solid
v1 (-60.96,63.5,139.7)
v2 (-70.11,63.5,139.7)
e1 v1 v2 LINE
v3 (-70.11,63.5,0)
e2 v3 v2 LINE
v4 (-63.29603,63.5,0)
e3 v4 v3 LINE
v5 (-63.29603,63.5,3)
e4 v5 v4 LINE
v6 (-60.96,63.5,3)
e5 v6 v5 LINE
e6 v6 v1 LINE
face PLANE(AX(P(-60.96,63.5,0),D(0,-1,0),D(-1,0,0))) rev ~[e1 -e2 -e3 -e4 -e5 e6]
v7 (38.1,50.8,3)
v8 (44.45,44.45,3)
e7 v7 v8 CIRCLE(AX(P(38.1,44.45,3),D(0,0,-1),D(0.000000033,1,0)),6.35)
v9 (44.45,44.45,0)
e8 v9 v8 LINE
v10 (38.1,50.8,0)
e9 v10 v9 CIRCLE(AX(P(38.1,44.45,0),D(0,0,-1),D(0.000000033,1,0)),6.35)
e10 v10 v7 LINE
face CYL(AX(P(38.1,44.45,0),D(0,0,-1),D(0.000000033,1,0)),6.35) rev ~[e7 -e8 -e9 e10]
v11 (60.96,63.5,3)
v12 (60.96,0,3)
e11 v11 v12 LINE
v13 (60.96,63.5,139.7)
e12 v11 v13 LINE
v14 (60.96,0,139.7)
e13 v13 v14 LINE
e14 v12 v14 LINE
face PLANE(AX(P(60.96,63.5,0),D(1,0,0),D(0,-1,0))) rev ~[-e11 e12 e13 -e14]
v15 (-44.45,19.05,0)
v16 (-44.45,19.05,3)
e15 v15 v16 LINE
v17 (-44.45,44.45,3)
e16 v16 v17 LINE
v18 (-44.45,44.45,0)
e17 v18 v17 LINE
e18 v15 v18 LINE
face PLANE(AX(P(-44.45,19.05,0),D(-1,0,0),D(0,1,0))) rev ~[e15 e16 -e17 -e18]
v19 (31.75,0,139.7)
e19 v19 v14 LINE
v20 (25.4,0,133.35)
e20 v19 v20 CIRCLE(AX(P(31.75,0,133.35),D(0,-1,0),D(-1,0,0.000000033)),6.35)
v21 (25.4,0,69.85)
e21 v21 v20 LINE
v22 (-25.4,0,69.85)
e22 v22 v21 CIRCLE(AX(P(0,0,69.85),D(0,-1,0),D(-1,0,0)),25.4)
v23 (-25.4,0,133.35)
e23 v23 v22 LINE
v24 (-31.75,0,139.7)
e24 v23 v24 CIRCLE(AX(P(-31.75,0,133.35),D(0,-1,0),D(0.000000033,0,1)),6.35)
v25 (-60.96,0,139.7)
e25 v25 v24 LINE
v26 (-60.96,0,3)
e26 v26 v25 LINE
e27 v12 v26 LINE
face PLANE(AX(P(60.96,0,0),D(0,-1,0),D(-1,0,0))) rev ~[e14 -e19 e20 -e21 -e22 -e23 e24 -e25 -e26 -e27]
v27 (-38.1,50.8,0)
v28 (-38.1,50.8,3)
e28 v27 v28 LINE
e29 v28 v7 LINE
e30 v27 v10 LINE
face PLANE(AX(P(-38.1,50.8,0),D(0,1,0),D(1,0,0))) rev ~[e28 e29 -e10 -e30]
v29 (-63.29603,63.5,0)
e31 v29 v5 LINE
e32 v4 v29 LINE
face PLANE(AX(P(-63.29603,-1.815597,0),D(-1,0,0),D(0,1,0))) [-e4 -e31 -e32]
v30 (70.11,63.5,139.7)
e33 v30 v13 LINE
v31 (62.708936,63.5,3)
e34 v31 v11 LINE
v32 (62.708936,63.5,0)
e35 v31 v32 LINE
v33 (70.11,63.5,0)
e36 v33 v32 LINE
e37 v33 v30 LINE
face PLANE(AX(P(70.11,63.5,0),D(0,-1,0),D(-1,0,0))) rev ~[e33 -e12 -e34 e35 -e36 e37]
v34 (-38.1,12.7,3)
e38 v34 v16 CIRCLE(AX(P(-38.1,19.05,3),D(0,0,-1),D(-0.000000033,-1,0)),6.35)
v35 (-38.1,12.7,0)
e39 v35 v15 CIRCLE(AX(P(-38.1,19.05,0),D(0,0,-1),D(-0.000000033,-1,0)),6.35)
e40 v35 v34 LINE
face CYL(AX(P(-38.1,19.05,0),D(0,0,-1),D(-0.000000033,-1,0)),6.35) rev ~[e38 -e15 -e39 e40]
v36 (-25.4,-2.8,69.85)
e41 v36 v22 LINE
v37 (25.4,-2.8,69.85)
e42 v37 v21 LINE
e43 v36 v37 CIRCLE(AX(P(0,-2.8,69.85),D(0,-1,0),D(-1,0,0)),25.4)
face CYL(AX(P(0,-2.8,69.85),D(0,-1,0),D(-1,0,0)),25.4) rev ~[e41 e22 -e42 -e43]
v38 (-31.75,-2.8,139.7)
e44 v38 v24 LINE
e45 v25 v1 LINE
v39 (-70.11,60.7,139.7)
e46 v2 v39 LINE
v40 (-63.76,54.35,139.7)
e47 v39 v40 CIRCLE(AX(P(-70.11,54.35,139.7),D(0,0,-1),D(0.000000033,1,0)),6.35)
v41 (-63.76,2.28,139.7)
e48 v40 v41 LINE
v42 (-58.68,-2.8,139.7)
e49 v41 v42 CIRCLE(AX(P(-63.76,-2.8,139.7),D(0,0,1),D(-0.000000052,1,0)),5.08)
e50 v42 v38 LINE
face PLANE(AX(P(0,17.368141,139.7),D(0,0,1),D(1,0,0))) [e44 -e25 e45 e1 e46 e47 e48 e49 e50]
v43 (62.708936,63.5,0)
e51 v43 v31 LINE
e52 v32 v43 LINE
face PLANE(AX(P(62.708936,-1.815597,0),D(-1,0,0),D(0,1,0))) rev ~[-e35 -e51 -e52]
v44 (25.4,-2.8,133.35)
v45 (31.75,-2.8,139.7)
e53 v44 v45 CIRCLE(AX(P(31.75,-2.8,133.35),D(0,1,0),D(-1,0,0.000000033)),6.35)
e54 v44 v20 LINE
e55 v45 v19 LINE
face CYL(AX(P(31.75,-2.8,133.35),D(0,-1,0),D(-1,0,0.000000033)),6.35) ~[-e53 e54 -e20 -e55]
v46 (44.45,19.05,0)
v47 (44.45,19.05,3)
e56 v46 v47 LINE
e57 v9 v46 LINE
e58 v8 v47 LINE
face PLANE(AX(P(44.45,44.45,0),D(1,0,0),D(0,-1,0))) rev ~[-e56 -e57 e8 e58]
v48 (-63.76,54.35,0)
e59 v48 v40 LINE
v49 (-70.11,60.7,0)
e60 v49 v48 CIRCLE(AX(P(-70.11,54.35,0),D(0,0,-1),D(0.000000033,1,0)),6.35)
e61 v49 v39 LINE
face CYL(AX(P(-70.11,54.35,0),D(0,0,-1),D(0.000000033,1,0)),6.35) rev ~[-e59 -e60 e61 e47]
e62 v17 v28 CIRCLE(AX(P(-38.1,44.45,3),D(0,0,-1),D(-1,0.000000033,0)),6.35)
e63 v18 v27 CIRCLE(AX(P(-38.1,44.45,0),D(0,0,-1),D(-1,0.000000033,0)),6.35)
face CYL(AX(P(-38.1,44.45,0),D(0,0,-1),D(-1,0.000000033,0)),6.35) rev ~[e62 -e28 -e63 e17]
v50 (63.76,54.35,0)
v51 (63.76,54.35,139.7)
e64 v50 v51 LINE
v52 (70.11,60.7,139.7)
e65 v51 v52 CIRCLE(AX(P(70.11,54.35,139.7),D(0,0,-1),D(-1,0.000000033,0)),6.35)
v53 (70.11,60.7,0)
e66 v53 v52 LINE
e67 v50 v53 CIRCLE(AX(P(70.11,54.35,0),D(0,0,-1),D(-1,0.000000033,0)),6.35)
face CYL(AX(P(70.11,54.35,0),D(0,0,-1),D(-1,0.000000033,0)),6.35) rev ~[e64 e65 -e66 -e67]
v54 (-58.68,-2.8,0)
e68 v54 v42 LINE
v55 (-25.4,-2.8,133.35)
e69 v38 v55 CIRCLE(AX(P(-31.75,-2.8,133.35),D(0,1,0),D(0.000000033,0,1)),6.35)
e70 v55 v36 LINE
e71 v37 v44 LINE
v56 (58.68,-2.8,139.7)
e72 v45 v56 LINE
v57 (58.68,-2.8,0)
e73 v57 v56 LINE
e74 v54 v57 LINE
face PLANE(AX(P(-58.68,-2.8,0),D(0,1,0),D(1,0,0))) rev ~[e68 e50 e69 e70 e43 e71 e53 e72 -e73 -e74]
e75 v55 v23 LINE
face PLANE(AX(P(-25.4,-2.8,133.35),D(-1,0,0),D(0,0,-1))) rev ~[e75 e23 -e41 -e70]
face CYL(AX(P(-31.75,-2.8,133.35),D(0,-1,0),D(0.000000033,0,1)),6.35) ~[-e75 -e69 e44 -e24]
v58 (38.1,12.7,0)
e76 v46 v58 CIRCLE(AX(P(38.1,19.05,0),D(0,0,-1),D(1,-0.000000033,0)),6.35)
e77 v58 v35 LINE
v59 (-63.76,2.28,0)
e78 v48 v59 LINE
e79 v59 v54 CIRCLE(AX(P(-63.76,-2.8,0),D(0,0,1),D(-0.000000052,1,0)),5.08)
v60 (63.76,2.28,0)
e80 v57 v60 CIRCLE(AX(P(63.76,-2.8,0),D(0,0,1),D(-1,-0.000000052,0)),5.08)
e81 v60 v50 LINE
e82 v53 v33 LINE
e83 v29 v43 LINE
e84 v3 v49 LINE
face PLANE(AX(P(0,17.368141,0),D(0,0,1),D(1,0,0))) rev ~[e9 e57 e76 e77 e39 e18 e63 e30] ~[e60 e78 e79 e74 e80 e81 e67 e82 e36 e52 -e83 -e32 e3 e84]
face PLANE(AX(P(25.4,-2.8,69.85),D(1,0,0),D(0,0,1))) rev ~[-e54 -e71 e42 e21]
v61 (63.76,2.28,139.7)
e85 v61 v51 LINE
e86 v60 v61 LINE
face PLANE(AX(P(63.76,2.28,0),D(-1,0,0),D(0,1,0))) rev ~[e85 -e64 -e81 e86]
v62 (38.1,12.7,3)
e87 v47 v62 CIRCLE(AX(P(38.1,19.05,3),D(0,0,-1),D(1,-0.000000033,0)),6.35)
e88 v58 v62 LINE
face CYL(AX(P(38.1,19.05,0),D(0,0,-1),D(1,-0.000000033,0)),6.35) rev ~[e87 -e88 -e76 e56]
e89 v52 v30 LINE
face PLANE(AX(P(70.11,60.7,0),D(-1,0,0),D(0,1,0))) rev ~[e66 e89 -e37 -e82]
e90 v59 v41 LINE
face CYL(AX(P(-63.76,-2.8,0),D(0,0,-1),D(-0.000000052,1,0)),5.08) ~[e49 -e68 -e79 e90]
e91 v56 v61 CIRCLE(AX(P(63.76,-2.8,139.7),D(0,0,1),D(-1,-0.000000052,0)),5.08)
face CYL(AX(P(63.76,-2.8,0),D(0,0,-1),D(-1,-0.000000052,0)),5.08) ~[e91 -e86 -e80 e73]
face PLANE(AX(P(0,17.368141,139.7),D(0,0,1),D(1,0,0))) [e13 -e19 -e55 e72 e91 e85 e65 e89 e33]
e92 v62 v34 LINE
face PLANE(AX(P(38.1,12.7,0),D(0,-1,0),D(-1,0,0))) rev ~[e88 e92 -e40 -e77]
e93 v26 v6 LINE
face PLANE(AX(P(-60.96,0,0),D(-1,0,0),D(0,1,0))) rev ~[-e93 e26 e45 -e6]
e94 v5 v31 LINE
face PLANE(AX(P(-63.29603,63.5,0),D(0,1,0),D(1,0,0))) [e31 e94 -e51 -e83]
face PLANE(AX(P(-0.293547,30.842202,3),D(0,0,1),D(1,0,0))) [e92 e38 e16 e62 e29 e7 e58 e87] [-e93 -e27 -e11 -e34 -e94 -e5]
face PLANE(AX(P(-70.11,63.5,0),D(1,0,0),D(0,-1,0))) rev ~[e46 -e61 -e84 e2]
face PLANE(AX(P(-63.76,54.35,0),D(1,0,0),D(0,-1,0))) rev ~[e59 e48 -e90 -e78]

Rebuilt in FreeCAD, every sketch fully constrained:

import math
import FreeCAD as App
import Part
import Sketcher
Q = App.Units.Quantity


def add_polygon(sketch, points):
    """Adds a closed chain of lines whose ends are joined by coincident constraints."""
    first, n = sketch.GeometryCount, len(points)
    for a, b in zip(points, points[1:] + points[:1]):
        sketch.addGeometry(Part.LineSegment(App.Vector(*a, 0), App.Vector(*b, 0)), False)
    for i in range(n):
        sketch.addConstraint(Sketcher.Constraint("Coincident", first + i, 2, first + (i + 1) % n, 1))

doc = App.newDocument("Part")
body = doc.addObject("PartDesign::Body", "Body")

# Sketch on XY plane
sketch1 = body.newObject("Sketcher::SketchObject", "Sketch")
sketch1.AttachmentSupport = (doc.getObject("XY_Plane"), [""])
sketch1.MapMode = "FlatFace"
sketch1.addGeometry([
    Part.LineSegment(App.Vector(61, 0, 0), App.Vector(-61, 0, 0)),  # 0
    Part.LineSegment(App.Vector(-61, 0, 0), App.Vector(-61, 63.5, 0)),  # 1
    Part.LineSegment(App.Vector(-61, 63.5, 0), App.Vector(-70.1, 63.5, 0)),  # 2
    Part.LineSegment(App.Vector(-70.1, 63.5, 0), App.Vector(-70.1, 60.7, 0)),  # 3
    Part.ArcOfCircle(Part.Circle(App.Vector(-70.1, 54.3, 0), App.Vector(0, 0, 1), 6.4), math.radians(0), math.radians(90)),  # 4
    Part.LineSegment(App.Vector(-63.8, 54.4, 0), App.Vector(-63.8, 2.3, 0)),  # 5
    Part.ArcOfCircle(Part.Circle(App.Vector(-63.8, -2.8, 0), App.Vector(0, 0, 1), 5.1), math.radians(90), math.radians(360)),  # 6
    Part.LineSegment(App.Vector(-58.7, -2.8, 0), App.Vector(58.7, -2.8, 0)),  # 7
    Part.ArcOfCircle(Part.Circle(App.Vector(63.8, -2.8, 0), App.Vector(0, 0, 1), 5.1), math.radians(-180), math.radians(90)),  # 8
    Part.LineSegment(App.Vector(63.8, 2.3, 0), App.Vector(63.8, 54.4, 0)),  # 9
    Part.ArcOfCircle(Part.Circle(App.Vector(70.1, 54.3, 0), App.Vector(0, 0, 1), 6.4), math.radians(90), math.radians(180)),  # 10
    Part.LineSegment(App.Vector(70.1, 60.7, 0), App.Vector(70.1, 63.5, 0)),  # 11
    Part.LineSegment(App.Vector(70.1, 63.5, 0), App.Vector(61, 63.5, 0)),  # 12
    Part.LineSegment(App.Vector(61, 63.5, 0), App.Vector(61, 0, 0)),  # 13
], False)
sketch1.addConstraint([
    Sketcher.Constraint("Coincident", 0, 2, 1, 1),
    Sketcher.Constraint("Coincident", 1, 2, 2, 1),
    Sketcher.Constraint("Coincident", 2, 2, 3, 1),
    Sketcher.Constraint("Coincident", 3, 2, 4, 2),
    Sketcher.Constraint("Tangent", 4, 1, 5, 1),
    Sketcher.Constraint("Coincident", 5, 2, 6, 1),
    Sketcher.Constraint("Coincident", 6, 2, 7, 1),
    Sketcher.Constraint("Coincident", 7, 2, 8, 1),
    Sketcher.Constraint("Coincident", 8, 2, 9, 1),
    Sketcher.Constraint("Tangent", 9, 2, 10, 2),
    Sketcher.Constraint("Coincident", 10, 1, 11, 1),
    Sketcher.Constraint("Coincident", 11, 2, 12, 1),
    Sketcher.Constraint("Coincident", 12, 2, 13, 1),
    Sketcher.Constraint("Coincident", 13, 2, 0, 1),
    Sketcher.Constraint("Horizontal", 0),
    Sketcher.Constraint("Vertical", 1),
    Sketcher.Constraint("Horizontal", 2),
    Sketcher.Constraint("Vertical", 3),
    Sketcher.Constraint("Vertical", 5),
    Sketcher.Constraint("Horizontal", 7),
    Sketcher.Constraint("Vertical", 9),
    Sketcher.Constraint("Vertical", 11),
    Sketcher.Constraint("Horizontal", 12),
    Sketcher.Constraint("Vertical", 13),
    Sketcher.Constraint("Equal", 6, 8),
    Sketcher.Constraint("Equal", 4, 10),
    Sketcher.Constraint("Symmetric", 0, 2, 13, 2, -1, 1),
    Sketcher.Constraint("Symmetric", 6, 3, 8, 3, -2),
    Sketcher.Constraint("Symmetric", 4, 3, 10, 3, -2),
    Sketcher.Constraint("Symmetric", 2, 2, 11, 2, -2),
    Sketcher.Constraint("Horizontal", 8, 3, 6, 2),
    Sketcher.Constraint("Vertical", 4, 3, 2, 2),
    Sketcher.Constraint("Vertical", 6, 3, 4, 1),
    Sketcher.Constraint("Radius", 6, Q("0.2 in")),
    Sketcher.Constraint("Radius", 4, Q("0.25 in")),
    Sketcher.Constraint("DistanceX", 0, 2, 0, 1, Q("4.8 in")),
    Sketcher.Constraint("DistanceY", 1, 1, 1, 2, Q("2.5 in")),
    Sketcher.Constraint("DistanceY", 5, 2, 5, 1, Q("2.05 in")),
    Sketcher.Constraint("DistanceX", 2, 2, 2, 1, 9.15),
    Sketcher.Constraint("DistanceY", 3, 2, 3, 1, 2.8),
])
pad1 = body.newObject("PartDesign::Pad", "Pad")
pad1.Profile = sketch1
pad1.Length = Q("5.5 in")

# Sketch on XZ plane
sketch2 = body.newObject("Sketcher::SketchObject", "Sketch001")
sketch2.AttachmentSupport = (doc.getObject("XZ_Plane"), [""])
sketch2.MapMode = "FlatFace"
sketch2.AttachmentOffset = App.Placement(App.Vector(0, 0, 2.8), App.Rotation())
sketch2.addGeometry([
    Part.LineSegment(App.Vector(-25, 133, 0), App.Vector(-25, 70, 0)),  # 0
    Part.ArcOfCircle(Part.Circle(App.Vector(0, 70, 0), App.Vector(0, 0, 1), 25), math.radians(180), math.radians(360)),  # 1
    Part.LineSegment(App.Vector(25, 70, 0), App.Vector(25, 133, 0)),  # 2
    Part.ArcOfCircle(Part.Circle(App.Vector(32, 133, 0), App.Vector(0, 0, 1), 6), math.radians(90), math.radians(180)),  # 3
    Part.LineSegment(App.Vector(32, 140, 0), App.Vector(42, 140, 0)),  # 4
    Part.LineSegment(App.Vector(42, 140, 0), App.Vector(42, 151, 0)),  # 5
    Part.LineSegment(App.Vector(42, 151, 0), App.Vector(-39, 151, 0)),  # 6
    Part.LineSegment(App.Vector(-39, 151, 0), App.Vector(-39, 140, 0)),  # 7
    Part.LineSegment(App.Vector(-39, 140, 0), App.Vector(-32, 140, 0)),  # 8
    Part.ArcOfCircle(Part.Circle(App.Vector(-32, 133, 0), App.Vector(0, 0, 1), 6), math.radians(0), math.radians(90)),  # 9
], False)
sketch2.addConstraint([
    Sketcher.Constraint("Tangent", 0, 2, 1, 1),
    Sketcher.Constraint("Tangent", 1, 2, 2, 1),
    Sketcher.Constraint("Tangent", 2, 2, 3, 2),
    Sketcher.Constraint("Tangent", 3, 1, 4, 1),
    Sketcher.Constraint("Coincident", 4, 2, 5, 1),
    Sketcher.Constraint("Coincident", 5, 2, 6, 1),
    Sketcher.Constraint("Coincident", 6, 2, 7, 1),
    Sketcher.Constraint("Coincident", 7, 2, 8, 1),
    Sketcher.Constraint("Tangent", 8, 2, 9, 2),
    Sketcher.Constraint("Tangent", 9, 1, 0, 1),
    Sketcher.Constraint("Vertical", 0),
    Sketcher.Constraint("Vertical", 2),
    Sketcher.Constraint("Horizontal", 4),
    Sketcher.Constraint("Vertical", 5),
    Sketcher.Constraint("Horizontal", 6),
    Sketcher.Constraint("Vertical", 7),
    Sketcher.Constraint("Horizontal", 8),
    Sketcher.Constraint("Equal", 3, 9),
    Sketcher.Constraint("Symmetric", 3, 3, 9, 3, -2),
    Sketcher.Constraint("Radius", 1, Q("1 in")),
    Sketcher.Constraint("Radius", 3, Q("0.25 in")),
    Sketcher.Constraint("DistanceY", 0, 2, 0, 1, Q("2.5 in")),
    Sketcher.Constraint("DistanceY", -1, 1, 3, 1, Q("5.5 in")),
    Sketcher.Constraint("DistanceX", 4, 1, 4, 2, 10.155578),
    Sketcher.Constraint("DistanceX", 6, 2, 6, 1, 80.689244),
    Sketcher.Constraint("DistanceY", 5, 1, 5, 2, 11.321525),
])
pocket1 = body.newObject("PartDesign::Pocket", "Pocket")
pocket1.Profile = sketch2
pocket1.Type = "ThroughAll"

# Sketch on XY plane
sketch3 = body.newObject("Sketcher::SketchObject", "Sketch002")
sketch3.AttachmentSupport = (doc.getObject("XY_Plane"), [""])
sketch3.MapMode = "FlatFace"
add_polygon(sketch3, [(-63, 64), (-63, -2), (63, -2), (63, 64)])  # lines 0-3
sketch3.addGeometry(Part.LineSegment(App.Vector(-44, 19, 0), App.Vector(-44, 44, 0)), False)  # 4
sketch3.addGeometry(Part.ArcOfCircle(Part.Circle(App.Vector(-38, 44, 0), App.Vector(0, 0, 1), 6), math.radians(90), math.radians(180)), False)  # 5
sketch3.addGeometry(Part.LineSegment(App.Vector(-38, 51, 0), App.Vector(38, 51, 0)), False)  # 6
sketch3.addGeometry(Part.ArcOfCircle(Part.Circle(App.Vector(38, 44, 0), App.Vector(0, 0, 1), 6), math.radians(0), math.radians(90)), False)  # 7
sketch3.addGeometry(Part.LineSegment(App.Vector(44, 44, 0), App.Vector(44, 19, 0)), False)  # 8
sketch3.addGeometry(Part.ArcOfCircle(Part.Circle(App.Vector(38, 19, 0), App.Vector(0, 0, 1), 6), math.radians(-90), math.radians(0)), False)  # 9
sketch3.addGeometry(Part.LineSegment(App.Vector(38, 13, 0), App.Vector(-38, 13, 0)), False)  # 10
sketch3.addGeometry(Part.ArcOfCircle(Part.Circle(App.Vector(-38, 19, 0), App.Vector(0, 0, 1), 6), math.radians(-180), math.radians(-90)), False)  # 11
sketch3.addConstraint([
    Sketcher.Constraint("Tangent", 4, 2, 5, 2),
    Sketcher.Constraint("Tangent", 5, 1, 6, 1),
    Sketcher.Constraint("Tangent", 6, 2, 7, 2),
    Sketcher.Constraint("Tangent", 7, 1, 8, 1),
    Sketcher.Constraint("Tangent", 8, 2, 9, 2),
    Sketcher.Constraint("Tangent", 9, 1, 10, 1),
    Sketcher.Constraint("Tangent", 10, 2, 11, 2),
    Sketcher.Constraint("Tangent", 11, 1, 4, 1),
    Sketcher.Constraint("Vertical", 0),
    Sketcher.Constraint("Horizontal", 1),
    Sketcher.Constraint("Vertical", 2),
    Sketcher.Constraint("Horizontal", 3),
    Sketcher.Constraint("Vertical", 4),
    Sketcher.Constraint("Horizontal", 6),
    Sketcher.Constraint("Vertical", 8),
    Sketcher.Constraint("Horizontal", 10),
    Sketcher.Constraint("Equal", 5, 7),
    Sketcher.Constraint("Equal", 7, 9),
    Sketcher.Constraint("Equal", 9, 11),
    Sketcher.Constraint("DistanceX", 6, 1, 6, 2, Q("3 in")),
    Sketcher.Constraint("DistanceY", 4, 1, 4, 2, Q("1 in")),
    Sketcher.Constraint("Radius", 5, Q("0.25 in")),
    Sketcher.Constraint("DistanceY", -1, 1, 5, 1, Q("2 in")),
    Sketcher.Constraint("DistanceX", 5, 3, -1, 1, Q("1.5 in")),
    Sketcher.Constraint("DistanceY", -1, 1, 2, 2, Q("2.5 in")),
    Sketcher.Constraint("DistanceX", 1, 1, 1, 2, 126.004966),
    Sketcher.Constraint("DistanceY", 0, 2, 0, 1, 65.315597),
    Sketcher.Constraint("DistanceX", 0, 2, -1, 1, 63.29603),
])
pad2 = body.newObject("PartDesign::Pad", "Pad001")
pad2.Profile = sketch3
pad2.Length = 3

doc.recompute()
